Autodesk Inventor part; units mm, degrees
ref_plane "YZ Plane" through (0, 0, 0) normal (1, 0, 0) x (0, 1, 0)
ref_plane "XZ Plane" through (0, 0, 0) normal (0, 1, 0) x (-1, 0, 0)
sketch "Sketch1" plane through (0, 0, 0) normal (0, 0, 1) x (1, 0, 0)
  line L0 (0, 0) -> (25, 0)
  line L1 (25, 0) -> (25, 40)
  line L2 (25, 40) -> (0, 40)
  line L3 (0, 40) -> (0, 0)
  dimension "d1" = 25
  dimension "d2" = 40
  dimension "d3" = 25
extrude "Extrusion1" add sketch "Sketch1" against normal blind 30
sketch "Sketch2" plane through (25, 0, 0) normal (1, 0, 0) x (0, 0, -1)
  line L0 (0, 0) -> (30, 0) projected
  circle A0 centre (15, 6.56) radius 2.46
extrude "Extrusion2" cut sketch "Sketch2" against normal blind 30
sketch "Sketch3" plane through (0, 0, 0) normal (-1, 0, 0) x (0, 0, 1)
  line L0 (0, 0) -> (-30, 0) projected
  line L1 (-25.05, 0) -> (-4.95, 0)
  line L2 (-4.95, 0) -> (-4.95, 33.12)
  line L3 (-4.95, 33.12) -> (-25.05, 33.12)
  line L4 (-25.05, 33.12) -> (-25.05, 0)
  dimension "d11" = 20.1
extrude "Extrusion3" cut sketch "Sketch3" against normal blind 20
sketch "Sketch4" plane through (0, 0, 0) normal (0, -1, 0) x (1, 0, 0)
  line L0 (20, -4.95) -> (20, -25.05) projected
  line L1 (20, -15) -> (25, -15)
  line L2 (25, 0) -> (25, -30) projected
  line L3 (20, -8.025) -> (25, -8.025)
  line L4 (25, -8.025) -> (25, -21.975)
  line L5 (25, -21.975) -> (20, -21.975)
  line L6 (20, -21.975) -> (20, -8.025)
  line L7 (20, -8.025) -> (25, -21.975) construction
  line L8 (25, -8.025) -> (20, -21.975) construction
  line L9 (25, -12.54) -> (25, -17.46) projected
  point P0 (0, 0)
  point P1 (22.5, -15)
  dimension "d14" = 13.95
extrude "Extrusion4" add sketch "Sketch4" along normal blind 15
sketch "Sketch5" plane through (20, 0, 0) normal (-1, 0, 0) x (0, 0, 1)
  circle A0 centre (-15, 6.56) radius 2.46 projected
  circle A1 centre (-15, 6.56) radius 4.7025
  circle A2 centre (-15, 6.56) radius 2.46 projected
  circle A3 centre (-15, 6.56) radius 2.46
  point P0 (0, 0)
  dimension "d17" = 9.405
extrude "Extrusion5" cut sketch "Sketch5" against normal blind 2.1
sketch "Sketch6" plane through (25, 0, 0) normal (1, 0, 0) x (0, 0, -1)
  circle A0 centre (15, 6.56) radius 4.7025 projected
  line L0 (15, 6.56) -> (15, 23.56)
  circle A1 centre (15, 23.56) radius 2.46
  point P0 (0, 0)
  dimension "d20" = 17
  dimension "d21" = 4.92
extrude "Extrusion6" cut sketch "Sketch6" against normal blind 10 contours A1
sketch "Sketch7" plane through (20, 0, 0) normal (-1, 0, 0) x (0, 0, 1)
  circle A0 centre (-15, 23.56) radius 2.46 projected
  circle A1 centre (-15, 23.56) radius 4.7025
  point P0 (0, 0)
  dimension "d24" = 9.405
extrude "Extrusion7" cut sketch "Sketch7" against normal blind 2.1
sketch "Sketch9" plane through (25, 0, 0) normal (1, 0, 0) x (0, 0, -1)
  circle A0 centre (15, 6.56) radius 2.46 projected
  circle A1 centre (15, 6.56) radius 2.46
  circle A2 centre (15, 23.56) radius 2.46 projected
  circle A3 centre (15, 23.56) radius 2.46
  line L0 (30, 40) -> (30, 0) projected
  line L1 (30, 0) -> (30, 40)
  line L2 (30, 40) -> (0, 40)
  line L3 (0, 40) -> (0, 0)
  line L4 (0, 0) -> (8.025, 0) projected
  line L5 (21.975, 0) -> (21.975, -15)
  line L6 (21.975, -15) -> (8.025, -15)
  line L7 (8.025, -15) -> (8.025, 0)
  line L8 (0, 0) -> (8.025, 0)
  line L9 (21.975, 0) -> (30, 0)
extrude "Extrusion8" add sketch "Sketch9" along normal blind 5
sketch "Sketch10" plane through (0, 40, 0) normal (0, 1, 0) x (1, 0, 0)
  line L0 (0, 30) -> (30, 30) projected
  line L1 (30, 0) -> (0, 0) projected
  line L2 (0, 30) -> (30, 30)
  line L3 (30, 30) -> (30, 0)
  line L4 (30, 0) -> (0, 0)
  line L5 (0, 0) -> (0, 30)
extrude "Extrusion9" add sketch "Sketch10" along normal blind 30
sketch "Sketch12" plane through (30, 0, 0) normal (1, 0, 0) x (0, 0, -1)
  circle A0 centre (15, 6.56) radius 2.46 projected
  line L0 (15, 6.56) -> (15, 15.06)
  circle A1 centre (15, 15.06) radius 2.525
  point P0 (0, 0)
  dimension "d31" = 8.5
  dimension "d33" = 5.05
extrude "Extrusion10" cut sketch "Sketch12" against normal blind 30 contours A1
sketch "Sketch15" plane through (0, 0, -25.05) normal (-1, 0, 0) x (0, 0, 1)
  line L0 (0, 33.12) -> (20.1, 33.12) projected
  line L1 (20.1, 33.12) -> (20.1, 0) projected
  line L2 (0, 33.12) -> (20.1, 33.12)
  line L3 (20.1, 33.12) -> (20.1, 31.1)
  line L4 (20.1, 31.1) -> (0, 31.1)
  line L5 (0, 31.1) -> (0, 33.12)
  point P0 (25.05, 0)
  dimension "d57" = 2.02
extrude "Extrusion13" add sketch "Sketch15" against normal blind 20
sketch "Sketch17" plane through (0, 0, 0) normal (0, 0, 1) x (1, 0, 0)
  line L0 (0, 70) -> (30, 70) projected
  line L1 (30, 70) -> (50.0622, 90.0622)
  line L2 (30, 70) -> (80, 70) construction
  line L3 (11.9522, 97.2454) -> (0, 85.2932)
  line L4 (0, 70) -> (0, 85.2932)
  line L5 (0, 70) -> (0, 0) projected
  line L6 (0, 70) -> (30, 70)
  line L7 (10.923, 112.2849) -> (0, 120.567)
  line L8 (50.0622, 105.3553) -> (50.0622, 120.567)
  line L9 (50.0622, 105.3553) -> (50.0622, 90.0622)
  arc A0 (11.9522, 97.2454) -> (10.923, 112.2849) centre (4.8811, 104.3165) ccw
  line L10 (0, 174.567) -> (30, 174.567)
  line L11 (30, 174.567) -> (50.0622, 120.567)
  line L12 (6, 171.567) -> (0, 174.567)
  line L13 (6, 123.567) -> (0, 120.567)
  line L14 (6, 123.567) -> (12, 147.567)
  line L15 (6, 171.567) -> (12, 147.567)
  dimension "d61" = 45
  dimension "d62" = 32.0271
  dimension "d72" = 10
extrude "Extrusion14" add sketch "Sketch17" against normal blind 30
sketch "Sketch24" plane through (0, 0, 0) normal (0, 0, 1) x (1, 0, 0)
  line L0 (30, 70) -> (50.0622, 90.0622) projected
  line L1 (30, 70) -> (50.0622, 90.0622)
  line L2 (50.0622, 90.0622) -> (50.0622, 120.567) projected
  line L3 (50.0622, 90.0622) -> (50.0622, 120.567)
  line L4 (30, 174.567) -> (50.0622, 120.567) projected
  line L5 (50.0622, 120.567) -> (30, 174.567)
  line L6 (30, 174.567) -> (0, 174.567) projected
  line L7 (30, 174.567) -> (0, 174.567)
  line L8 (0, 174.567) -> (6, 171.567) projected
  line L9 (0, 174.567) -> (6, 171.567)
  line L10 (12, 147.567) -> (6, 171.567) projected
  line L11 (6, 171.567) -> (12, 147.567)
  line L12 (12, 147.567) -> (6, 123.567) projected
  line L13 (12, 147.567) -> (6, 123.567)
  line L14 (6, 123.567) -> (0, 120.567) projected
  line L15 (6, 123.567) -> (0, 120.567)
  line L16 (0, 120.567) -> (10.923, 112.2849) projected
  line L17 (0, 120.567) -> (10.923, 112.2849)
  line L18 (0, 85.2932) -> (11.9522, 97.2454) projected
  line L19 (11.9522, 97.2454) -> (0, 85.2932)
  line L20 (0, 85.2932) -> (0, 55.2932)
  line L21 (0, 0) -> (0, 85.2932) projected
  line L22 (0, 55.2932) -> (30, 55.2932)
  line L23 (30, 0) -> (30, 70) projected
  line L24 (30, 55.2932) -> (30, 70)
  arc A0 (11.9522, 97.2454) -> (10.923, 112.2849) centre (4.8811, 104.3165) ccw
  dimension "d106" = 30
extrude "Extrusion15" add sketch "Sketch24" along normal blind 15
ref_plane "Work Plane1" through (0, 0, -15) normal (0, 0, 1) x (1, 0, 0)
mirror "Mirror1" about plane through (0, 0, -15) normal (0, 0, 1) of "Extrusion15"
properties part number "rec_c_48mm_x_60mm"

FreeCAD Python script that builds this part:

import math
import FreeCAD as App
import Part
import Sketcher
from FreeCAD import Vector
Q = App.Units.Quantity


def add_polygon(sketch, points):
    """Adds a closed chain of lines whose ends are joined by coincident constraints."""
    first, n = sketch.GeometryCount, len(points)
    for a, b in zip(points, points[1:] + points[:1]):
        sketch.addGeometry(Part.LineSegment(App.Vector(*a, 0), App.Vector(*b, 0)), False)
    for i in range(n):
        sketch.addConstraint(Sketcher.Constraint("Coincident", first + i, 2, first + (i + 1) % n, 1))

doc = App.newDocument("Part")
params = doc.addObject("Spreadsheet::Sheet", "Params")
for row, (alias, value) in enumerate([
    ("sketch1_width", "25 mm"),
    ("sketch1_height", "40 mm"),
    ("pad1_length", "30 mm"),
    ("sketch2_diameter", "4.92 mm"),
    ("pocket1_length", "30 mm"),
    ("sketch3_height", "20.1 mm"),
    ("sketch3_width", "33.12 mm"),
    ("pocket2_length", "20 mm"),
    ("sketch4_height", "13.95 mm"),
    ("sketch4_width", "5 mm"),
    ("pad2_length", "15 mm"),
    ("sketch5_diameter", "4.92 mm"),
    ("pocket3_length", "2.1 mm"),
    ("sketch6_diameter", "4.92 mm"),
    ("pocket4_length", "10 mm"),
    ("sketch7_diameter", "4.92 mm"),
    ("pocket5_length", "2.1 mm"),
    ("sketch8_diameter", "4.92 mm"),
    ("sketch8_width", "40 mm"),
    ("sketch8_width2", "15 mm"),
    ("sketch8_height", "30 mm"),
    ("sketch8_height2", "13.95 mm"),
    ("pad3_length", "5 mm"),
    ("sketch9_width", "30 mm"),
    ("pad4_length", "30 mm"),
    ("sketch10_diameter", "5.05 mm"),
    ("pocket6_length", "30 mm"),
    ("sketch11_width", "2.02 mm"),
    ("sketch11_height", "20.1 mm"),
    ("pad5_length", "20 mm"),
    ("sketch12_radius", "10 mm"),
    ("sketch12_width", "30 mm"),
    ("pad6_length", "30 mm"),
    ("sketch13_width", "30 mm"),
    ("sketch13_radius", "10 mm"),
    ("pad7_length", "15 mm"),
], start=1):
    params.set(f"A{row}", alias)
    params.set(f"B{row}", "=" + value)
    params.setAlias(f"B{row}", alias)

body = doc.addObject("PartDesign::Body", "Body")

# Sketch on XY plane
sketch1 = body.newObject("Sketcher::SketchObject", "Sketch")
sketch1.AttachmentSupport = (doc.getObject("XY_Plane"), [""])
sketch1.MapMode = "FlatFace"
add_polygon(sketch1, [(0, 40), (0, 0), (25, 0), (25, 40)])  # lines 0-3
sketch1.addConstraint([
    Sketcher.Constraint("Vertical", 0),
    Sketcher.Constraint("Horizontal", 1),
    Sketcher.Constraint("Vertical", 2),
    Sketcher.Constraint("Horizontal", 3),
    Sketcher.Constraint("Coincident", 0, 2, -1, 1),
    Sketcher.Constraint("DistanceX", 1, 1, 1, 2, Q("25 mm")),
    Sketcher.Constraint("DistanceY", 0, 2, 0, 1, Q("40 mm")),
])
sketch1.setExpression("Constraints[9]", "Params.sketch1_width")
sketch1.setExpression("Constraints[10]", "Params.sketch1_height")
pad1 = body.newObject("PartDesign::Pad", "Pad")
pad1.Profile = sketch1
pad1.setExpression("Length", "Params.pad1_length")
pad1.Reversed = True

# Sketch on YZ plane
sketch2 = body.newObject("Sketcher::SketchObject", "Sketch001")
sketch2.AttachmentSupport = (doc.getObject("YZ_Plane"), [""])
sketch2.MapMode = "FlatFace"
sketch2.AttachmentOffset = App.Placement(Vector(0, 0, 25), App.Rotation())
sketch2.addGeometry(Part.Circle(Vector(6.56, -15, 0), Vector(0, 0, 1), 2.46), False)
sketch2.addConstraint([
    Sketcher.Constraint("Diameter", 0, Q("4.92 mm")),
    Sketcher.Constraint("DistanceY", 0, 3, -1, 1, Q("15 mm")),
    Sketcher.Constraint("DistanceX", -1, 1, 0, 3, Q("6.56 mm")),
])
sketch2.setExpression("Constraints[0]", "Params.sketch2_diameter")
pocket1 = body.newObject("PartDesign::Pocket", "Pocket")
pocket1.Profile = sketch2
pocket1.setExpression("Length", "Params.pocket1_length")

# Sketch on YZ plane
sketch3 = body.newObject("Sketcher::SketchObject", "Sketch002")
sketch3.AttachmentSupport = (doc.getObject("YZ_Plane"), [""])
sketch3.MapMode = "FlatFace"
add_polygon(sketch3, [(0, -25.05), (0, -4.95), (33.12, -4.95), (33.12, -25.05)])  # lines 0-3
sketch3.addConstraint([
    Sketcher.Constraint("Vertical", 0),
    Sketcher.Constraint("Horizontal", 1),
    Sketcher.Constraint("Vertical", 2),
    Sketcher.Constraint("Horizontal", 3),
    Sketcher.Constraint("PointOnObject", 0, 2, -2),
    Sketcher.Constraint("DistanceY", 0, 1, 0, 2, Q("20.1 mm")),
    Sketcher.Constraint("DistanceX", 1, 1, 1, 2, Q("33.12 mm")),
    Sketcher.Constraint("DistanceY", 0, 2, -1, 1, Q("4.95 mm")),
])
sketch3.setExpression("Constraints[9]", "Params.sketch3_height")
sketch3.setExpression("Constraints[10]", "Params.sketch3_width")
pocket2 = body.newObject("PartDesign::Pocket", "Pocket001")
pocket2.Profile = sketch3
pocket2.setExpression("Length", "Params.pocket2_length")
pocket2.Reversed = True

# Sketch on XZ plane
sketch4 = body.newObject("Sketcher::SketchObject", "Sketch003")
sketch4.AttachmentSupport = (doc.getObject("XZ_Plane"), [""])
sketch4.MapMode = "FlatFace"
add_polygon(sketch4, [(25, -8.025), (20, -8.025), (20, -21.975), (25, -21.975)])  # lines 0-3
sketch4.addConstraint([
    Sketcher.Constraint("Horizontal", 0),
    Sketcher.Constraint("Vertical", 1),
    Sketcher.Constraint("Horizontal", 2),
    Sketcher.Constraint("Vertical", 3),
    Sketcher.Constraint("DistanceY", 1, 2, 1, 1, Q("13.95 mm")),
    Sketcher.Constraint("DistanceX", 0, 2, 0, 1, Q("5 mm")),
    Sketcher.Constraint("DistanceX", -1, 1, 0, 2, Q("20 mm")),
    Sketcher.Constraint("DistanceY", 0, 2, -1, 1, Q("8.025 mm")),
])
sketch4.setExpression("Constraints[8]", "Params.sketch4_height")
sketch4.setExpression("Constraints[9]", "Params.sketch4_width")
pad2 = body.newObject("PartDesign::Pad", "Pad001")
pad2.Profile = sketch4
pad2.setExpression("Length", "Params.pad2_length")

# Sketch on YZ plane
sketch5 = body.newObject("Sketcher::SketchObject", "Sketch004")
sketch5.AttachmentSupport = (doc.getObject("YZ_Plane"), [""])
sketch5.MapMode = "FlatFace"
sketch5.AttachmentOffset = App.Placement(Vector(0, 0, 20), App.Rotation())
sketch5.addGeometry([
    Part.Circle(Vector(6.56, -15, 0), Vector(0, 0, 1), 4.7025),
    Part.Circle(Vector(6.56, -15, 0), Vector(0, 0, 1), 2.46),
], False)
sketch5.addConstraint([
    Sketcher.Constraint("Coincident", 1, 3, 0, 3),
    Sketcher.Constraint("Diameter", 0, Q("9.405 mm")),
    Sketcher.Constraint("Diameter", 1, Q("4.92 mm")),
    Sketcher.Constraint("DistanceY", 0, 3, -1, 1, Q("15 mm")),
    Sketcher.Constraint("DistanceX", -1, 1, 0, 3, Q("6.56 mm")),
])
sketch5.setExpression("Constraints[2]", "Params.sketch5_diameter")
pocket3 = body.newObject("PartDesign::Pocket", "Pocket002")
pocket3.Profile = sketch5
pocket3.setExpression("Length", "Params.pocket3_length")
pocket3.Reversed = True

# Sketch on YZ plane
sketch6 = body.newObject("Sketcher::SketchObject", "Sketch005")
sketch6.AttachmentSupport = (doc.getObject("YZ_Plane"), [""])
sketch6.MapMode = "FlatFace"
sketch6.AttachmentOffset = App.Placement(Vector(0, 0, 25), App.Rotation())
sketch6.addGeometry(Part.Circle(Vector(23.56, -15, 0), Vector(0, 0, 1), 2.46), False)
sketch6.addConstraint([
    Sketcher.Constraint("Diameter", 0, Q("4.92 mm")),
    Sketcher.Constraint("DistanceY", 0, 3, -1, 1, Q("15 mm")),
    Sketcher.Constraint("DistanceX", -1, 1, 0, 3, Q("23.56 mm")),
])
sketch6.setExpression("Constraints[0]", "Params.sketch6_diameter")
pocket4 = body.newObject("PartDesign::Pocket", "Pocket003")
pocket4.Profile = sketch6
pocket4.setExpression("Length", "Params.pocket4_length")

# Sketch on YZ plane
sketch7 = body.newObject("Sketcher::SketchObject", "Sketch006")
sketch7.AttachmentSupport = (doc.getObject("YZ_Plane"), [""])
sketch7.MapMode = "FlatFace"
sketch7.AttachmentOffset = App.Placement(Vector(0, 0, 20), App.Rotation())
sketch7.addGeometry([
    Part.Circle(Vector(23.56, -15, 0), Vector(0, 0, 1), 4.7025),
    Part.Circle(Vector(23.56, -15, 0), Vector(0, 0, 1), 2.46),
], False)
sketch7.addConstraint([
    Sketcher.Constraint("Coincident", 1, 3, 0, 3),
    Sketcher.Constraint("Diameter", 0, Q("9.405 mm")),
    Sketcher.Constraint("Diameter", 1, Q("4.92 mm")),
    Sketcher.Constraint("DistanceY", 0, 3, -1, 1, Q("15 mm")),
    Sketcher.Constraint("DistanceX", -1, 1, 0, 3, Q("23.56 mm")),
])
sketch7.setExpression("Constraints[2]", "Params.sketch7_diameter")
pocket5 = body.newObject("PartDesign::Pocket", "Pocket004")
pocket5.Profile = sketch7
pocket5.setExpression("Length", "Params.pocket5_length")
pocket5.Reversed = True

# Sketch on YZ plane
sketch8 = body.newObject("Sketcher::SketchObject", "Sketch007")
sketch8.AttachmentSupport = (doc.getObject("YZ_Plane"), [""])
sketch8.MapMode = "FlatFace"
sketch8.AttachmentOffset = App.Placement(Vector(0, 0, 25), App.Rotation())
add_polygon(sketch8, [(0, -30), (40, -30), (40, 0), (0, 0), (0, -8.025), (-15, -8.025), (-15, -21.975), (0, -21.975)])  # lines 0-7
sketch8.addGeometry(Part.Circle(Vector(6.56, -15, 0), Vector(0, 0, 1), 2.46), False)  # 8
sketch8.addGeometry(Part.Circle(Vector(23.56, -15, 0), Vector(0, 0, 1), 2.46), False)  # 9
sketch8.addConstraint([
    Sketcher.Constraint("Horizontal", 0),
    Sketcher.Constraint("Vertical", 1),
    Sketcher.Constraint("Horizontal", 2),
    Sketcher.Constraint("Vertical", 3),
    Sketcher.Constraint("Horizontal", 4),
    Sketcher.Constraint("Vertical", 5),
    Sketcher.Constraint("Horizontal", 6),
    Sketcher.Constraint("Vertical", 7),
    Sketcher.Constraint("Coincident", 2, 2, -1, 1),
    Sketcher.Constraint("Equal", 8, 9),
    Sketcher.Constraint("PointOnObject", 6, 2, -2),
    Sketcher.Constraint("Horizontal", 8, 3, 9, 3),
    Sketcher.Constraint("Equal", 3, 7),
    Sketcher.Constraint("Diameter", 8, Q("4.92 mm")),
    Sketcher.Constraint("DistanceX", 0, 1, 0, 2, Q("40 mm")),
    Sketcher.Constraint("DistanceX", 4, 2, 4, 1, Q("15 mm")),
    Sketcher.Constraint("DistanceY", 1, 1, 1, 2, Q("30 mm")),
    Sketcher.Constraint("DistanceY", 8, 3, -1, 1, Q("15 mm")),
    Sketcher.Constraint("DistanceX", 8, 3, 9, 3, Q("17 mm")),
    Sketcher.Constraint("DistanceY", 5, 2, 5, 1, Q("13.95 mm")),
    Sketcher.Constraint("DistanceX", -1, 1, 8, 3, Q("6.56 mm")),
])
sketch8.setExpression("Constraints[21]", "Params.sketch8_diameter")
sketch8.setExpression("Constraints[22]", "Params.sketch8_width")
sketch8.setExpression("Constraints[23]", "Params.sketch8_width2")
sketch8.setExpression("Constraints[24]", "Params.sketch8_height")
sketch8.setExpression("Constraints[27]", "Params.sketch8_height2")
pad3 = body.newObject("PartDesign::Pad", "Pad002")
pad3.Profile = sketch8
pad3.setExpression("Length", "Params.pad3_length")

# Sketch on XZ plane
sketch9 = body.newObject("Sketcher::SketchObject", "Sketch008")
sketch9.AttachmentSupport = (doc.getObject("XZ_Plane"), [""])
sketch9.MapMode = "FlatFace"
sketch9.AttachmentOffset = App.Placement(Vector(0, 0, -40), App.Rotation())
add_polygon(sketch9, [(30, -30), (0, -30), (0, 0), (30, 0)])  # lines 0-3
sketch9.addConstraint([
    Sketcher.Constraint("Horizontal", 0),
    Sketcher.Constraint("Vertical", 1),
    Sketcher.Constraint("Horizontal", 2),
    Sketcher.Constraint("Vertical", 3),
    Sketcher.Constraint("Coincident", 1, 2, -1, 1),
    Sketcher.Constraint("Equal", 2, 1),
    Sketcher.Constraint("DistanceX", 0, 2, 0, 1, Q("30 mm")),
])
sketch9.setExpression("Constraints[10]", "Params.sketch9_width")
pad4 = body.newObject("PartDesign::Pad", "Pad003")
pad4.Profile = sketch9
pad4.setExpression("Length", "Params.pad4_length")
pad4.Reversed = True

# Sketch on YZ plane
sketch10 = body.newObject("Sketcher::SketchObject", "Sketch009")
sketch10.AttachmentSupport = (doc.getObject("YZ_Plane"), [""])
sketch10.MapMode = "FlatFace"
sketch10.AttachmentOffset = App.Placement(Vector(0, 0, 30), App.Rotation())
sketch10.addGeometry(Part.Circle(Vector(15.06, -15, 0), Vector(0, 0, 1), 2.525), False)
sketch10.addConstraint([
    Sketcher.Constraint("Diameter", 0, Q("5.05 mm")),
    Sketcher.Constraint("DistanceY", 0, 3, -1, 1, Q("15 mm")),
    Sketcher.Constraint("DistanceX", -1, 1, 0, 3, Q("15.06 mm")),
])
sketch10.setExpression("Constraints[0]", "Params.sketch10_diameter")
pocket6 = body.newObject("PartDesign::Pocket", "Pocket005")
pocket6.Profile = sketch10
pocket6.setExpression("Length", "Params.pocket6_length")

# Sketch on YZ plane
sketch11 = body.newObject("Sketcher::SketchObject", "Sketch010")
sketch11.AttachmentSupport = (doc.getObject("YZ_Plane"), [""])
sketch11.MapMode = "FlatFace"
add_polygon(sketch11, [(33.12, -4.95), (33.12, -25.05), (31.1, -25.05), (31.1, -4.95)])  # lines 0-3
sketch11.addConstraint([
    Sketcher.Constraint("Vertical", 0),
    Sketcher.Constraint("Horizontal", 1),
    Sketcher.Constraint("Vertical", 2),
    Sketcher.Constraint("Horizontal", 3),
    Sketcher.Constraint("DistanceX", 1, 2, 1, 1, Q("2.02 mm")),
    Sketcher.Constraint("DistanceY", 0, 2, 0, 1, Q("20.1 mm")),
    Sketcher.Constraint("DistanceX", -1, 1, 1, 2, Q("31.1 mm")),
    Sketcher.Constraint("DistanceY", 0, 2, -1, 1, Q("25.05 mm")),
])
sketch11.setExpression("Constraints[8]", "Params.sketch11_width")
sketch11.setExpression("Constraints[9]", "Params.sketch11_height")
pad5 = body.newObject("PartDesign::Pad", "Pad004")
pad5.Profile = sketch11
pad5.setExpression("Length", "Params.pad5_length")

# Sketch on XY plane
sketch12 = body.newObject("Sketcher::SketchObject", "Sketch011")
sketch12.AttachmentSupport = (doc.getObject("XY_Plane"), [""])
sketch12.MapMode = "FlatFace"
sketch12.addGeometry([
    Part.LineSegment(Vector(0, 85.2932, 0), Vector(0, 70, 0)),  # 0
    Part.LineSegment(Vector(0, 70, 0), Vector(30, 70, 0)),  # 1
    Part.LineSegment(Vector(30, 70, 0), Vector(50.0622, 90.0622, 0)),  # 2
    Part.LineSegment(Vector(50.0622, 90.0622, 0), Vector(50.0622, 120.567, 0)),  # 3
    Part.LineSegment(Vector(50.0622, 120.567, 0), Vector(30, 174.567, 0)),  # 4
    Part.LineSegment(Vector(30, 174.567, 0), Vector(0, 174.567, 0)),  # 5
    Part.LineSegment(Vector(0, 174.567, 0), Vector(6, 171.567, 0)),  # 6
    Part.LineSegment(Vector(6, 171.567, 0), Vector(12, 147.567, 0)),  # 7
    Part.LineSegment(Vector(12, 147.567, 0), Vector(6, 123.567, 0)),  # 8
    Part.LineSegment(Vector(6, 123.567, 0), Vector(0, 120.567, 0)),  # 9
    Part.LineSegment(Vector(0, 120.567, 0), Vector(10.923, 112.2849, 0)),  # 10
    Part.ArcOfCircle(Part.Circle(Vector(4.8811, 104.3165, 0), Vector(0, 0, 1), 10.000046), math.radians(-45), math.radians(52.829413)),  # 11
    Part.LineSegment(Vector(11.9522, 97.2454, 0), Vector(0, 85.2932, 0)),  # 12
], False)
sketch12.addConstraint([
    Sketcher.Constraint("Coincident", 0, 2, 1, 1),
    Sketcher.Constraint("Coincident", 1, 2, 2, 1),
    Sketcher.Constraint("Coincident", 2, 2, 3, 1),
    Sketcher.Constraint("Coincident", 3, 2, 4, 1),
    Sketcher.Constraint("Coincident", 4, 2, 5, 1),
    Sketcher.Constraint("Coincident", 5, 2, 6, 1),
    Sketcher.Constraint("Coincident", 6, 2, 7, 1),
    Sketcher.Constraint("Coincident", 7, 2, 8, 1),
    Sketcher.Constraint("Coincident", 8, 2, 9, 1),
    Sketcher.Constraint("Coincident", 9, 2, 10, 1),
    Sketcher.Constraint("Tangent", 10, 2, 11, 2),
    Sketcher.Constraint("Tangent", 11, 1, 12, 1),
    Sketcher.Constraint("Coincident", 12, 2, 0, 1),
    Sketcher.Constraint("Vertical", 0),
    Sketcher.Constraint("Horizontal", 1),
    Sketcher.Constraint("Vertical", 3),
    Sketcher.Constraint("Horizontal", 5),
    Sketcher.Constraint("PointOnObject", 0, 2, -2),
    Sketcher.Constraint("PointOnObject", 5, 2, -2),
    Sketcher.Constraint("PointOnObject", 9, 2, -2),
    Sketcher.Constraint("Parallel", 2, 12),
    Sketcher.Constraint("Horizontal", 3, 2, 9, 2),
    Sketcher.Constraint("Vertical", 1, 2, 4, 2),
    Sketcher.Constraint("Vertical", 6, 2, 8, 2),
    Sketcher.Constraint("Equal", 7, 8),
    Sketcher.Constraint("Equal", 6, 9),
    Sketcher.Constraint("Radius", 11, Q("10 mm")),
    Sketcher.Constraint("Angle", 2, Q("45 deg")),
    Sketcher.Constraint("DistanceX", 1, 1, 1, 2, Q("30 mm")),
    Sketcher.Constraint("DistanceY", -1, 1, 0, 2, Q("70 mm")),
    Sketcher.Constraint("DistanceX", -1, 1, 6, 2, Q("6 mm")),
    Sketcher.Constraint("DistanceX", -1, 1, 7, 2, Q("12 mm")),
    Sketcher.Constraint("DistanceY", 3, 2, 4, 2, Q("54 mm")),
    Sketcher.Constraint("DistanceY", 6, 2, 5, 2, Q("3 mm")),
    Sketcher.Constraint("Angle", 4, Q("110.3812 deg")),
    Sketcher.Constraint("Angle", 10, Q("-37.1703 deg")),
    Sketcher.Constraint("Distance", 12, Q("16.903 mm")),
    Sketcher.Constraint("DistanceY", 0, 2, 0, 1, Q("15.2932 mm")),
])
sketch12.setExpression("Constraints[26]", "Params.sketch12_radius")
sketch12.setExpression("Constraints[28]", "Params.sketch12_width")
pad6 = body.newObject("PartDesign::Pad", "Pad005")
pad6.Profile = sketch12
pad6.setExpression("Length", "Params.pad6_length")
pad6.Reversed = True

# Sketch on XY plane
sketch13 = body.newObject("Sketcher::SketchObject", "Sketch012")
sketch13.AttachmentSupport = (doc.getObject("XY_Plane"), [""])
sketch13.MapMode = "FlatFace"
sketch13.addGeometry([
    Part.LineSegment(Vector(30, 55.2932, 0), Vector(30, 70, 0)),  # 0
    Part.LineSegment(Vector(30, 70, 0), Vector(50.0622, 90.0622, 0)),  # 1
    Part.LineSegment(Vector(50.0622, 90.0622, 0), Vector(50.0622, 120.567, 0)),  # 2
    Part.LineSegment(Vector(50.0622, 120.567, 0), Vector(30, 174.567, 0)),  # 3
    Part.LineSegment(Vector(30, 174.567, 0), Vector(0, 174.567, 0)),  # 4
    Part.LineSegment(Vector(0, 174.567, 0), Vector(6, 171.567, 0)),  # 5
    Part.LineSegment(Vector(6, 171.567, 0), Vector(12, 147.567, 0)),  # 6
    Part.LineSegment(Vector(12, 147.567, 0), Vector(6, 123.567, 0)),  # 7
    Part.LineSegment(Vector(6, 123.567, 0), Vector(0, 120.567, 0)),  # 8
    Part.LineSegment(Vector(0, 120.567, 0), Vector(10.923, 112.2849, 0)),  # 9
    Part.ArcOfCircle(Part.Circle(Vector(4.8811, 104.3165, 0), Vector(0, 0, 1), 10.000046), math.radians(-45), math.radians(52.829413)),  # 10
    Part.LineSegment(Vector(11.9522, 97.2454, 0), Vector(0, 85.2932, 0)),  # 11
    Part.LineSegment(Vector(0, 85.2932, 0), Vector(0, 55.2932, 0)),  # 12
    Part.LineSegment(Vector(0, 55.2932, 0), Vector(30, 55.2932, 0)),  # 13
], False)
sketch13.addConstraint([
    Sketcher.Constraint("Coincident", 0, 2, 1, 1),
    Sketcher.Constraint("Coincident", 1, 2, 2, 1),
    Sketcher.Constraint("Coincident", 2, 2, 3, 1),
    Sketcher.Constraint("Coincident", 3, 2, 4, 1),
    Sketcher.Constraint("Coincident", 4, 2, 5, 1),
    Sketcher.Constraint("Coincident", 5, 2, 6, 1),
    Sketcher.Constraint("Coincident", 6, 2, 7, 1),
    Sketcher.Constraint("Coincident", 7, 2, 8, 1),
    Sketcher.Constraint("Coincident", 8, 2, 9, 1),
    Sketcher.Constraint("Tangent", 9, 2, 10, 2),
    Sketcher.Constraint("Tangent", 10, 1, 11, 1),
    Sketcher.Constraint("Coincident", 11, 2, 12, 1),
    Sketcher.Constraint("Coincident", 12, 2, 13, 1),
    Sketcher.Constraint("Coincident", 13, 2, 0, 1),
    Sketcher.Constraint("Vertical", 0),
    Sketcher.Constraint("Vertical", 2),
    Sketcher.Constraint("Horizontal", 4),
    Sketcher.Constraint("Vertical", 12),
    Sketcher.Constraint("Horizontal", 13),
    Sketcher.Constraint("PointOnObject", 4, 2, -2),
    Sketcher.Constraint("PointOnObject", 8, 2, -2),
    Sketcher.Constraint("PointOnObject", 11, 2, -2),
    Sketcher.Constraint("Parallel", 1, 11),
    Sketcher.Constraint("Horizontal", 2, 2, 8, 2),
    Sketcher.Constraint("Vertical", 0, 2, 3, 2),
    Sketcher.Constraint("Vertical", 5, 2, 7, 2),
    Sketcher.Constraint("Equal", 13, 12),
    Sketcher.Constraint("Equal", 6, 7),
    Sketcher.Constraint("Equal", 5, 8),
    Sketcher.Constraint("DistanceX", 4, 2, 4, 1, Q("30 mm")),
    Sketcher.Constraint("Radius", 10, Q("10 mm")),
    Sketcher.Constraint("Angle", 1, Q("45 deg")),
    Sketcher.Constraint("DistanceY", -1, 1, 0, 2, Q("70 mm")),
    Sketcher.Constraint("DistanceX", -1, 1, 5, 2, Q("6 mm")),
    Sketcher.Constraint("DistanceX", -1, 1, 6, 2, Q("12 mm")),
    Sketcher.Constraint("DistanceY", 2, 2, 3, 2, Q("54 mm")),
    Sketcher.Constraint("DistanceY", 5, 2, 4, 2, Q("3 mm")),
    Sketcher.Constraint("Angle", 3, Q("110.3812 deg")),
    Sketcher.Constraint("Angle", 9, Q("-37.1703 deg")),
    Sketcher.Constraint("Distance", 11, Q("16.903 mm")),
    Sketcher.Constraint("DistanceY", 0, 1, 0, 2, Q("14.7068 mm")),
])
sketch13.setExpression("Constraints[29]", "Params.sketch13_width")
sketch13.setExpression("Constraints[30]", "Params.sketch13_radius")
pad7 = body.newObject("PartDesign::Pad", "Pad006")
pad7.Profile = sketch13
pad7.setExpression("Length", "Params.pad7_length")
doc.recompute()

datumplane = body.newObject("PartDesign::Plane", "DatumPlane")
datumplane.AttachmentSupport = (doc.getObject("XY_Plane"), [""])
datumplane.MapMode = "FlatFace"
datumplane.AttachmentOffset = App.Placement(Vector(0, 0, -15), App.Rotation())
mirrored = body.newObject("PartDesign::Mirrored", "Mirrored")
mirrored.Originals = [pad7]
mirrored.MirrorPlane = (datumplane, [""])
body.Tip = mirrored

doc.recompute()
